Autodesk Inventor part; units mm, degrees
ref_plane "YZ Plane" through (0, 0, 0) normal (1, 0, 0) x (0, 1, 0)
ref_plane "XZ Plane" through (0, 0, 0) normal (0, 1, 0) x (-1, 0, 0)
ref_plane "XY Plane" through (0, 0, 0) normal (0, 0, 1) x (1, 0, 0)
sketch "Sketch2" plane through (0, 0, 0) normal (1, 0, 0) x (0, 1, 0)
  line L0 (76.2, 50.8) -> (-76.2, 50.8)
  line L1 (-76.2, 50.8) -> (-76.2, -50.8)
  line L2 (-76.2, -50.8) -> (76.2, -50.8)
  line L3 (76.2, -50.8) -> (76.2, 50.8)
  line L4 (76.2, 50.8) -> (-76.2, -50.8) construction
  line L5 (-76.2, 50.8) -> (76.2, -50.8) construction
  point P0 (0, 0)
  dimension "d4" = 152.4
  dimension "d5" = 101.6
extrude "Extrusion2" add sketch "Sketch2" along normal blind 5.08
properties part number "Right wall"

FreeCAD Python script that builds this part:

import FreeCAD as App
import Part
import Sketcher

V = App.Vector
Q = App.Units.Quantity

doc = App.newDocument("Part")
params = doc.addObject("Spreadsheet::Sheet", "Params")
for row, (alias, value) in enumerate([
    ("sketch1_width", "6 in"),
    ("sketch1_height", "4 in"),
    ("pad1_length", "0.2 in"),
], start=1):
    params.set(f"A{row}", alias)
    params.set(f"B{row}", "=" + value)
    params.setAlias(f"B{row}", alias)

body = doc.addObject("PartDesign::Body", "Body")

# Sketch on YZ plane
sketch1 = body.newObject("Sketcher::SketchObject", "Sketch")
sketch1.AttachmentSupport = (doc.getObject("YZ_Plane"), [""])
sketch1.MapMode = "FlatFace"
sketch1.addGeometry([
    Part.LineSegment(V(76.2, -50.8, 0), V(76.2, 50.8, 0)),
    Part.LineSegment(V(76.2, 50.8, 0), V(-76.2, 50.8, 0)),
    Part.LineSegment(V(-76.2, 50.8, 0), V(-76.2, -50.8, 0)),
    Part.LineSegment(V(-76.2, -50.8, 0), V(76.2, -50.8, 0)),
], False)
sketch1.addConstraint([
    Sketcher.Constraint("Coincident", 0, 2, 1, 1),
    Sketcher.Constraint("Coincident", 1, 2, 2, 1),
    Sketcher.Constraint("Coincident", 2, 2, 3, 1),
    Sketcher.Constraint("Coincident", 3, 2, 0, 1),
    Sketcher.Constraint("Vertical", 0),
    Sketcher.Constraint("Horizontal", 1),
    Sketcher.Constraint("Vertical", 2),
    Sketcher.Constraint("Horizontal", 3),
    Sketcher.Constraint("Symmetric", 0, 2, 2, 2, -1, 1),
    Sketcher.Constraint("DistanceX", 1, 2, 1, 1, Q("6 in")),
    Sketcher.Constraint("DistanceY", 0, 1, 0, 2, Q("4 in")),
])
sketch1.setExpression("Constraints[9]", "Params.sketch1_width")
sketch1.setExpression("Constraints[10]", "Params.sketch1_height")
pad1 = body.newObject("PartDesign::Pad", "Pad")
pad1.Profile = sketch1
pad1.setExpression("Length", "Params.pad1_length")

doc.recompute()
